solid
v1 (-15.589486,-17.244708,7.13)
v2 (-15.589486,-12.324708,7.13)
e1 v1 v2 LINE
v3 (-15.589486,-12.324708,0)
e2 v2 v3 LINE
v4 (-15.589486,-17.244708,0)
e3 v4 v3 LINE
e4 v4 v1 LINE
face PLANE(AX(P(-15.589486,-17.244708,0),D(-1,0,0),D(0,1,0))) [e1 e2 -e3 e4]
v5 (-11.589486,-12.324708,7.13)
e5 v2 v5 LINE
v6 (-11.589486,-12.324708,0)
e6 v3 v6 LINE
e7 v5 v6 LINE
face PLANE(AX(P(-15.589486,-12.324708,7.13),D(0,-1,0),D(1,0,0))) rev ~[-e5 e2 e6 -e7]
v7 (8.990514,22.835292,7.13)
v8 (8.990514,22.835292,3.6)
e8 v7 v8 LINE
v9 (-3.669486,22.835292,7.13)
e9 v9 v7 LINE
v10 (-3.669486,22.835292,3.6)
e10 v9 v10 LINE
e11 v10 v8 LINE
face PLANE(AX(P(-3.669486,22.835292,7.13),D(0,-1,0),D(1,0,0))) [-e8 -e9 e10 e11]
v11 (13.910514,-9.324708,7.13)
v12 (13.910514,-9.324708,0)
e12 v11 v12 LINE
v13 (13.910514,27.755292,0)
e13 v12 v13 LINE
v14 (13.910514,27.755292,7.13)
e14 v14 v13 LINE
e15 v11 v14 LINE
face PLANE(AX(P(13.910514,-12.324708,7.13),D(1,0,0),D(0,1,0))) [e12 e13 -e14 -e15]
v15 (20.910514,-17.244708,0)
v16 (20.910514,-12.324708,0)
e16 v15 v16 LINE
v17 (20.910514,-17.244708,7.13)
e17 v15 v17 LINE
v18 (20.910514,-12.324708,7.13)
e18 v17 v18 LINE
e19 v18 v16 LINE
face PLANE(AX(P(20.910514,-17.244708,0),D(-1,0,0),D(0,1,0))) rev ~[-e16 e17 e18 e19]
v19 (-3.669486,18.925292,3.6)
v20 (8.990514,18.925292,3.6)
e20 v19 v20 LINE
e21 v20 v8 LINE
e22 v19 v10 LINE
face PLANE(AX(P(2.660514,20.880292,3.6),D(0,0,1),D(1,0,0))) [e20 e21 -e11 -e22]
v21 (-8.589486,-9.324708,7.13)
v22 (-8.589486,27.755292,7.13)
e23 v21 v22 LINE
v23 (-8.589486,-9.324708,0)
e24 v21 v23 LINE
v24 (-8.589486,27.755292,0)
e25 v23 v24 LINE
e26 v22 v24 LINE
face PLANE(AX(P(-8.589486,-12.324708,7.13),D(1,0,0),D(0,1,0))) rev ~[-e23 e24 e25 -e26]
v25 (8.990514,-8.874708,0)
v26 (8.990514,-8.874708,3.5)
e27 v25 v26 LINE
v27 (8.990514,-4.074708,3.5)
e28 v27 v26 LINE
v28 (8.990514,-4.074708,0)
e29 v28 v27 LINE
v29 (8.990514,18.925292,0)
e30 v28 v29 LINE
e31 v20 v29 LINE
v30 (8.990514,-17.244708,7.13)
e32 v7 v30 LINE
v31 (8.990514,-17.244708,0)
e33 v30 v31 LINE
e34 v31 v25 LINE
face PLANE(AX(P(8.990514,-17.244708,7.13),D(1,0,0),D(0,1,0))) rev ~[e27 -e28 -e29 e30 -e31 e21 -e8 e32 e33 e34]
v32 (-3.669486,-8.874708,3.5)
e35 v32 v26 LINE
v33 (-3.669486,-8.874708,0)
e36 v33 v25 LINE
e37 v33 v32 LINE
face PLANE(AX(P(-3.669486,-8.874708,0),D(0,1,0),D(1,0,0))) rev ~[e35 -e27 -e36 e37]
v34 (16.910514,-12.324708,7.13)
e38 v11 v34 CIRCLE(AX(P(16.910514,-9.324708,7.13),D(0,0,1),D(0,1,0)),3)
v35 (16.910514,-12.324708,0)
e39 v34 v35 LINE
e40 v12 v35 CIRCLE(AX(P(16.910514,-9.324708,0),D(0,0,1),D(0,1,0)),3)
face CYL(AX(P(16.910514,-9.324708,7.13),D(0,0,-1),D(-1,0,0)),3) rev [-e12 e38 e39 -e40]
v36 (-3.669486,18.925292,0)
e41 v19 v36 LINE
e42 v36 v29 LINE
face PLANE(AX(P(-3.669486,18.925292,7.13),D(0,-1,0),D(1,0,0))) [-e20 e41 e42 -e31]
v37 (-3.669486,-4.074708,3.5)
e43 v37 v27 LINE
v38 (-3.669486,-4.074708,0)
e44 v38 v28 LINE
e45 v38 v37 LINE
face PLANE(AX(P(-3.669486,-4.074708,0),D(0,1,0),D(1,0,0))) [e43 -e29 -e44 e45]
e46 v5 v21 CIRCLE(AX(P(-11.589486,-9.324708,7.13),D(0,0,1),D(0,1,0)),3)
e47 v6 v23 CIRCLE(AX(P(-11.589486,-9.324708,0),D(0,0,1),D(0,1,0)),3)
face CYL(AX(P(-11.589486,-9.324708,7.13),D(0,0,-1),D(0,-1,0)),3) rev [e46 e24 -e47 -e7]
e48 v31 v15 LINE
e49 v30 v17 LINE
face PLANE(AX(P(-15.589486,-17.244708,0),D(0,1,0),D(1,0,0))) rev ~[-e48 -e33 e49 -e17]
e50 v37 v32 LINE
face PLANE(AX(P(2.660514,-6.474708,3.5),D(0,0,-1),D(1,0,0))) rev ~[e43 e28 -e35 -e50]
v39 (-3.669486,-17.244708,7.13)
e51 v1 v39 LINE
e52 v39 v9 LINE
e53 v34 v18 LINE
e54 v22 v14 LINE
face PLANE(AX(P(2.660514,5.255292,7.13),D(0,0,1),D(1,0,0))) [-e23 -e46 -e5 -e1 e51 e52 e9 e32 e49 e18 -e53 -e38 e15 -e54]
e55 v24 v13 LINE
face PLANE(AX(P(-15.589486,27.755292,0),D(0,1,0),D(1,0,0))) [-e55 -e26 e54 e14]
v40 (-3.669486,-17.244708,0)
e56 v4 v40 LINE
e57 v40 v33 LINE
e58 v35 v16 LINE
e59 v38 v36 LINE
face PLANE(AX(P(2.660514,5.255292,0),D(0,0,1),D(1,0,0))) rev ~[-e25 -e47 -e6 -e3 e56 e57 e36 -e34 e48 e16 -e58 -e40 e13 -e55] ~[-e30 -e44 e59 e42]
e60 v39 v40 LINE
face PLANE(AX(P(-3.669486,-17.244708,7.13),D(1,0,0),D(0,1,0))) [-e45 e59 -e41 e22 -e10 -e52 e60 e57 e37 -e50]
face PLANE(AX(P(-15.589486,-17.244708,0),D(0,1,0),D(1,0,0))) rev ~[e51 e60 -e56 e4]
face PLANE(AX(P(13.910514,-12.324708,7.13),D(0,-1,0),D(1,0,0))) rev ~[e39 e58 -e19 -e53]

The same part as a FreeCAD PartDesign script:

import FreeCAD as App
import Part
import Sketcher


def edges_at(feature, points):
    """Names of the edges that pass closest to the given points."""
    edges = feature.Shape.Edges
    near = lambda p: min(range(len(edges)), key=lambda i: edges[i].distToShape(Part.Vertex(*p))[0])
    return sorted({f"Edge{near(p) + 1}" for p in points})


def add_polygon(sketch, points):
    """Adds a closed chain of lines whose ends are joined by coincident constraints."""
    first, n = sketch.GeometryCount, len(points)
    for a, b in zip(points, points[1:] + points[:1]):
        sketch.addGeometry(Part.LineSegment(App.Vector(*a, 0), App.Vector(*b, 0)), False)
    for i in range(n):
        sketch.addConstraint(Sketcher.Constraint("Coincident", first + i, 2, first + (i + 1) % n, 1))

doc = App.newDocument("Part")
body = doc.addObject("PartDesign::Body", "Body")

# Sketch on XY plane
sketch1 = doc.addObject("Sketcher::SketchObject", "Sketch")
body.addObject(sketch1)
sketch1.AttachmentSupport = (doc.XY_Plane, [""])
sketch1.MapMode = "FlatFace"
add_polygon(sketch1, [(-16, 28), (-16, -17), (21, -17), (21, 28)])  # lines 0-3
sketch1.addConstraint([
    Sketcher.Constraint("Vertical", 0),
    Sketcher.Constraint("Horizontal", 1),
    Sketcher.Constraint("Vertical", 2),
    Sketcher.Constraint("Horizontal", 3),
    Sketcher.Constraint("DistanceY", 0, 2, 0, 1, 45.0),
    Sketcher.Constraint("DistanceX", 1, 1, 1, 2, 36.5),
    Sketcher.Constraint("DistanceX", 0, 2, -1, 1, 15.589486),
    Sketcher.Constraint("DistanceY", 0, 2, -1, 1, 17.244708),
])
pad1 = doc.addObject("PartDesign::Pad", "Pad")
body.addObject(pad1)
pad1.Profile = sketch1
pad1.Length = 7.13

# Sketch on XY plane
sketch2 = doc.addObject("Sketcher::SketchObject", "Sketch001")
body.addObject(sketch2)
sketch2.AttachmentSupport = (doc.XY_Plane, [""])
sketch2.MapMode = "FlatFace"
sketch2.AttachmentOffset = App.Placement(App.Vector(0, 0, 7.13), App.Rotation())
add_polygon(sketch2, [(-16, 28), (-16, -12), (-9, -12), (-9, 28)])  # lines 0-3
add_polygon(sketch2, [(14, 28), (14, -12), (21, -12), (21, 28)])  # lines 4-7
sketch2.addConstraint([
    Sketcher.Constraint("Vertical", 0),
    Sketcher.Constraint("Horizontal", 1),
    Sketcher.Constraint("Vertical", 2),
    Sketcher.Constraint("Horizontal", 3),
    Sketcher.Constraint("Vertical", 4),
    Sketcher.Constraint("Horizontal", 5),
    Sketcher.Constraint("Vertical", 6),
    Sketcher.Constraint("Horizontal", 7),
    Sketcher.Constraint("Horizontal", 1, 2, 4, 2),
    Sketcher.Constraint("Horizontal", 3, 2, 6, 2),
    Sketcher.Constraint("Equal", 3, 5),
    Sketcher.Constraint("DistanceX", 1, 1, 1, 2, 7.0),
    Sketcher.Constraint("DistanceY", 0, 2, 0, 1, 40.08),
    Sketcher.Constraint("DistanceX", 1, 2, 4, 2, 22.5),
    Sketcher.Constraint("DistanceX", 0, 2, -1, 1, 15.589486),
    Sketcher.Constraint("DistanceY", 0, 2, -1, 1, 12.324708),
])
pocket1 = doc.addObject("PartDesign::Pocket", "Pocket")
body.addObject(pocket1)
pocket1.Profile = sketch2
pocket1.Length = 7.13

# Sketch on XY plane
sketch3 = doc.addObject("Sketcher::SketchObject", "Sketch002")
body.addObject(sketch3)
sketch3.AttachmentSupport = (doc.XY_Plane, [""])
sketch3.MapMode = "FlatFace"
sketch3.AttachmentOffset = App.Placement(App.Vector(0, 0, 7.13), App.Rotation())
add_polygon(sketch3, [(-4, 19), (-4, -17), (9, -17), (9, 19)])  # lines 0-3
sketch3.addConstraint([
    Sketcher.Constraint("Vertical", 0),
    Sketcher.Constraint("Horizontal", 1),
    Sketcher.Constraint("Vertical", 2),
    Sketcher.Constraint("Horizontal", 3),
    Sketcher.Constraint("DistanceX", 1, 1, 1, 2, 12.66),
    Sketcher.Constraint("DistanceY", 0, 2, 0, 1, 36.17),
    Sketcher.Constraint("DistanceY", -1, 1, 2, 2, 18.925292),
    Sketcher.Constraint("DistanceX", 0, 2, -1, 1, 3.669486),
])
pocket2 = doc.addObject("PartDesign::Pocket", "Pocket001")
body.addObject(pocket2)
pocket2.Profile = sketch3
pocket2.Length = 7.13

# Sketch on XY plane
sketch4 = doc.addObject("Sketcher::SketchObject", "Sketch003")
body.addObject(sketch4)
sketch4.AttachmentSupport = (doc.XY_Plane, [""])
sketch4.MapMode = "FlatFace"
sketch4.AttachmentOffset = App.Placement(App.Vector(0, 0, 7.13), App.Rotation())
add_polygon(sketch4, [(-3.7, 22.8), (-3.7, 18.9), (9, 18.9), (9, 22.8)])  # lines 0-3
sketch4.addConstraint([
    Sketcher.Constraint("Vertical", 0),
    Sketcher.Constraint("Horizontal", 1),
    Sketcher.Constraint("Vertical", 2),
    Sketcher.Constraint("Horizontal", 3),
    Sketcher.Constraint("DistanceX", 1, 1, 1, 2, 12.66),
    Sketcher.Constraint("DistanceY", 0, 2, 0, 1, 3.91),
    Sketcher.Constraint("DistanceY", -1, 1, 0, 2, 18.925292),
    Sketcher.Constraint("DistanceX", 0, 2, -1, 1, 3.669486),
])
pocket3 = doc.addObject("PartDesign::Pocket", "Pocket002")
body.addObject(pocket3)
pocket3.Profile = sketch4
pocket3.Length = 3.53

# Sketch on XY plane
sketch5 = doc.addObject("Sketcher::SketchObject", "Sketch004")
body.addObject(sketch5)
sketch5.AttachmentSupport = (doc.XY_Plane, [""])
sketch5.MapMode = "FlatFace"
add_polygon(sketch5, [(-3.7, -8.9), (-3.7, -4.1), (9, -4.1), (9, -8.9)])  # lines 0-3
sketch5.addConstraint([
    Sketcher.Constraint("Vertical", 0),
    Sketcher.Constraint("Horizontal", 1),
    Sketcher.Constraint("Vertical", 2),
    Sketcher.Constraint("Horizontal", 3),
    Sketcher.Constraint("DistanceY", 0, 1, 0, 2, 4.8),
    Sketcher.Constraint("DistanceX", 1, 1, 1, 2, 12.66),
    Sketcher.Constraint("DistanceY", 0, 2, -1, 1, 4.074708),
    Sketcher.Constraint("DistanceX", 0, 2, -1, 1, 3.669486),
])
pad2 = doc.addObject("PartDesign::Pad", "Pad001")
body.addObject(pad2)
pad2.Profile = sketch5
pad2.Length = 3.5
doc.recompute()

fillet = doc.addObject("PartDesign::Fillet", "Fillet")
body.addObject(fillet)
fillet.Base = (pad2, edges_at(pad2, [(13.911, -12.325, 3.565), (-8.589, -12.325, 3.565)]))
fillet.Radius = 3

doc.recompute()
